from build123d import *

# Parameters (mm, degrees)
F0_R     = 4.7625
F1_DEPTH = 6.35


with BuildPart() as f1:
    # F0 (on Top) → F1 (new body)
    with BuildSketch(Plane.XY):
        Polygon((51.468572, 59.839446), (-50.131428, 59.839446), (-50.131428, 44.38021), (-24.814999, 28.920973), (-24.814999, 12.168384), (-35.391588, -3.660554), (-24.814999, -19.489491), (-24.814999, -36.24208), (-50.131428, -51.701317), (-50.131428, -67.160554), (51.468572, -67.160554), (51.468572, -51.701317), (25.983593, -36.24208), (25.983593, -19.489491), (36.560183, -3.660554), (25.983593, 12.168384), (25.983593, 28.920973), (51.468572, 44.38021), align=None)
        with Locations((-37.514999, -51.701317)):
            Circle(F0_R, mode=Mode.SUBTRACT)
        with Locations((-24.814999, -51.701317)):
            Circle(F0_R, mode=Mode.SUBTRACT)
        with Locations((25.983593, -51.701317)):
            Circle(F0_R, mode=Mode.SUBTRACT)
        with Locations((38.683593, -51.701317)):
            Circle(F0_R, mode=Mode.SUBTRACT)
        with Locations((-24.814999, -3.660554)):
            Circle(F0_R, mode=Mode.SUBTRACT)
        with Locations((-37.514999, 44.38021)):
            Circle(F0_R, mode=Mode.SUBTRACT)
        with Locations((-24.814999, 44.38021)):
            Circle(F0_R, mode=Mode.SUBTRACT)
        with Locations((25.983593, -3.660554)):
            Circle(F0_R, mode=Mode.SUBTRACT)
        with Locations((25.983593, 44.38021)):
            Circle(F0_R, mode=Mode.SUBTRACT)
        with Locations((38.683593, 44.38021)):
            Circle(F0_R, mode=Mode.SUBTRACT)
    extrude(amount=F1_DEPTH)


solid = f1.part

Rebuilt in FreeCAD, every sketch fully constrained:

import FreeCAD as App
import Part
import Sketcher
Q = App.Units.Quantity


def add_polygon(sketch, points):
    """Adds a closed chain of lines whose ends are joined by coincident constraints."""
    first, n = sketch.GeometryCount, len(points)
    for a, b in zip(points, points[1:] + points[:1]):
        sketch.addGeometry(Part.LineSegment(App.Vector(*a, 0), App.Vector(*b, 0)), False)
    for i in range(n):
        sketch.addConstraint(Sketcher.Constraint("Coincident", first + i, 2, first + (i + 1) % n, 1))

doc = App.newDocument("Part")
body = doc.addObject("PartDesign::Body", "Body")

# Sketch on XY plane
sketch1 = doc.addObject("Sketcher::SketchObject", "Sketch")
body.addObject(sketch1)
sketch1.AttachmentSupport = (doc.XY_Plane, [""])
sketch1.MapMode = "FlatFace"
add_polygon(sketch1, [(51.468572, 59.839446), (-50.131428, 59.839446), (-50.131428, 44.38021), (-24.814999, 28.920973), (-24.814999, 12.168384), (-35.391588, -3.660554), (-24.814999, -19.489491), (-24.814999, -36.24208), (-50.131428, -51.701317), (-50.131428, -67.160554), (51.468572, -67.160554), (51.468572, -51.701317), (25.983593, -36.24208), (25.983593, -19.489491), (36.560183, -3.660554), (25.983593, 12.168384), (25.983593, 28.920973), (51.468572, 44.38021)])  # lines 0-17
sketch1.addGeometry(Part.Circle(App.Vector(-37.514999, -51.701317, 0), App.Vector(0, 0, 1), 4.7625), False)  # 18
sketch1.addGeometry(Part.Circle(App.Vector(-24.814999, -51.701317, 0), App.Vector(0, 0, 1), 4.7625), False)  # 19
sketch1.addGeometry(Part.Circle(App.Vector(-24.814999, -3.660554, 0), App.Vector(0, 0, 1), 4.7625), False)  # 20
sketch1.addGeometry(Part.Circle(App.Vector(25.983593, -51.701317, 0), App.Vector(0, 0, 1), 4.7625), False)  # 21
sketch1.addGeometry(Part.Circle(App.Vector(38.683593, -51.701317, 0), App.Vector(0, 0, 1), 4.7625), False)  # 22
sketch1.addGeometry(Part.Circle(App.Vector(25.983593, -3.660554, 0), App.Vector(0, 0, 1), 4.7625), False)  # 23
sketch1.addGeometry(Part.Circle(App.Vector(-37.514999, 44.38021, 0), App.Vector(0, 0, 1), 4.7625), False)  # 24
sketch1.addGeometry(Part.Circle(App.Vector(-24.814999, 44.38021, 0), App.Vector(0, 0, 1), 4.7625), False)  # 25
sketch1.addGeometry(Part.Circle(App.Vector(25.983593, 44.38021, 0), App.Vector(0, 0, 1), 4.7625), False)  # 26
sketch1.addGeometry(Part.Circle(App.Vector(38.683593, 44.38021, 0), App.Vector(0, 0, 1), 4.7625), False)  # 27
sketch1.addConstraint(Sketcher.Constraint("Horizontal", 0))
sketch1.addConstraint(Sketcher.Constraint("Vertical", 1))
sketch1.addConstraint(Sketcher.Constraint("Vertical", 3))
sketch1.addConstraint(Sketcher.Constraint("Vertical", 6))
sketch1.addConstraint(Sketcher.Constraint("Vertical", 8))
sketch1.addConstraint(Sketcher.Constraint("Horizontal", 9))
sketch1.addConstraint(Sketcher.Constraint("Vertical", 10))
sketch1.addConstraint(Sketcher.Constraint("Vertical", 12))
sketch1.addConstraint(Sketcher.Constraint("Vertical", 15))
sketch1.addConstraint(Sketcher.Constraint("Vertical", 17))
sketch1.addConstraint(Sketcher.Constraint("Equal", 18, 19))
sketch1.addConstraint(Sketcher.Constraint("Equal", 19, 20))
sketch1.addConstraint(Sketcher.Constraint("Equal", 20, 21))
sketch1.addConstraint(Sketcher.Constraint("Equal", 21, 22))
sketch1.addConstraint(Sketcher.Constraint("Equal", 22, 23))
sketch1.addConstraint(Sketcher.Constraint("Equal", 23, 24))
sketch1.addConstraint(Sketcher.Constraint("Equal", 24, 25))
sketch1.addConstraint(Sketcher.Constraint("Equal", 25, 26))
sketch1.addConstraint(Sketcher.Constraint("Equal", 26, 27))
sketch1.addConstraint(Sketcher.Constraint("Parallel", 4, 13))
sketch1.addConstraint(Sketcher.Constraint("Parallel", 5, 14))
sketch1.addConstraint(Sketcher.Constraint("Horizontal", 18, 3, 19, 3))
sketch1.addConstraint(Sketcher.Constraint("Horizontal", 19, 3, 21, 3))
sketch1.addConstraint(Sketcher.Constraint("Horizontal", 21, 3, 22, 3))
sketch1.addConstraint(Sketcher.Constraint("Horizontal", 20, 3, 23, 3))
sketch1.addConstraint(Sketcher.Constraint("Horizontal", 24, 3, 25, 3))
sketch1.addConstraint(Sketcher.Constraint("Horizontal", 25, 3, 26, 3))
sketch1.addConstraint(Sketcher.Constraint("Horizontal", 26, 3, 27, 3))
sketch1.addConstraint(Sketcher.Constraint("Horizontal", 27, 3, 1, 2))
sketch1.addConstraint(Sketcher.Constraint("Horizontal", 23, 3, 4, 2))
sketch1.addConstraint(Sketcher.Constraint("Horizontal", 22, 3, 7, 2))
sketch1.addConstraint(Sketcher.Constraint("Horizontal", 7, 2, 10, 2))
sketch1.addConstraint(Sketcher.Constraint("Horizontal", 6, 2, 11, 2))
sketch1.addConstraint(Sketcher.Constraint("Horizontal", 5, 2, 12, 2))
sketch1.addConstraint(Sketcher.Constraint("Horizontal", 4, 2, 13, 2))
sketch1.addConstraint(Sketcher.Constraint("Horizontal", 3, 2, 14, 2))
sketch1.addConstraint(Sketcher.Constraint("Horizontal", 2, 2, 15, 2))
sketch1.addConstraint(Sketcher.Constraint("Horizontal", 1, 2, 16, 2))
sketch1.addConstraint(Sketcher.Constraint("Vertical", 19, 3, 20, 3))
sketch1.addConstraint(Sketcher.Constraint("Vertical", 21, 3, 23, 3))
sketch1.addConstraint(Sketcher.Constraint("Vertical", 18, 3, 24, 3))
sketch1.addConstraint(Sketcher.Constraint("Vertical", 20, 3, 25, 3))
sketch1.addConstraint(Sketcher.Constraint("Vertical", 23, 3, 26, 3))
sketch1.addConstraint(Sketcher.Constraint("Vertical", 22, 3, 27, 3))
sketch1.addConstraint(Sketcher.Constraint("Vertical", 25, 3, 2, 2))
sketch1.addConstraint(Sketcher.Constraint("Vertical", 3, 2, 5, 2))
sketch1.addConstraint(Sketcher.Constraint("Vertical", 1, 2, 7, 2))
sketch1.addConstraint(Sketcher.Constraint("Vertical", 26, 3, 11, 2))
sketch1.addConstraint(Sketcher.Constraint("Vertical", 12, 2, 14, 2))
sketch1.addConstraint(Sketcher.Constraint("Vertical", 10, 2, 16, 2))
sketch1.addConstraint(Sketcher.Constraint("Equal", 3, 6))
sketch1.addConstraint(Sketcher.Constraint("Equal", 1, 8))
sketch1.addConstraint(Sketcher.Constraint("Equal", 2, 7))
sketch1.addConstraint(Sketcher.Constraint("DistanceX", 0, 2, 0, 1, Q("4 in")))
sketch1.addConstraint(Sketcher.Constraint("Diameter", 18, Q("0.375 in")))
sketch1.addConstraint(Sketcher.Constraint("DistanceX", 18, 3, 19, 3, Q("0.5 in")))
sketch1.addConstraint(Sketcher.Constraint("DistanceX", 21, 3, 22, 3, Q("0.5 in")))
sketch1.addConstraint(Sketcher.Constraint("DistanceY", 20, 3, 0, 2, Q("2.5 in")))
sketch1.addConstraint(Sketcher.Constraint("DistanceY", 3, 2, 3, 1, Q("16.752589 mm")))
sketch1.addConstraint(Sketcher.Constraint("DistanceX", 18, 3, -1, 1, Q("37.514999 mm")))
sketch1.addConstraint(Sketcher.Constraint("Distance", 2, Q("29.66327 mm")))
sketch1.addConstraint(Sketcher.Constraint("Distance", 4, Q("19.037319 mm")))
sketch1.addConstraint(Sketcher.Constraint("Distance", 11, Q("29.80725 mm")))
sketch1.addConstraint(Sketcher.Constraint("DistanceY", 1, 2, 1, 1, Q("15.459236 mm")))
sketch1.addConstraint(Sketcher.Constraint("DistanceY", -1, 1, 24, 3, Q("44.38021 mm")))
sketch1.addConstraint(Sketcher.Constraint("DistanceY", 5, 2, -1, 1, Q("19.489491 mm")))
pad1 = doc.addObject("PartDesign::Pad", "Pad")
body.addObject(pad1)
pad1.Profile = sketch1
pad1.Length = Q("0.25 in")

doc.recompute()
